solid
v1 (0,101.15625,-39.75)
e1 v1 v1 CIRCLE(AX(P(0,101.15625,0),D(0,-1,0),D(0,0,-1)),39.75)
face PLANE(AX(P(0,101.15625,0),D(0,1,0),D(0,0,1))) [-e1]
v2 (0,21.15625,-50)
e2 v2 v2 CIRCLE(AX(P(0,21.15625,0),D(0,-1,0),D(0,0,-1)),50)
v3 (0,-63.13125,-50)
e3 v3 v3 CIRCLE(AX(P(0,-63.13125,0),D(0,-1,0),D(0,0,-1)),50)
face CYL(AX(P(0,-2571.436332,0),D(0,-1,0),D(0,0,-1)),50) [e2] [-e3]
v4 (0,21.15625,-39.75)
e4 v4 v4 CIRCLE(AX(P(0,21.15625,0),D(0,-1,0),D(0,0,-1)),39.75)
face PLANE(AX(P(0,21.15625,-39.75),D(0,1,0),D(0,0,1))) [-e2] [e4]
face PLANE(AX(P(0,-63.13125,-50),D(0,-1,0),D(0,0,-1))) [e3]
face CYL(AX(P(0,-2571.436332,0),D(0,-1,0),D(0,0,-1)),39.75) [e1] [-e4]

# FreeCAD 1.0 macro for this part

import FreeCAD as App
import Part
import Sketcher

doc = App.newDocument("Part")
body = doc.addObject("PartDesign::Body", "Body")

sketch1 = body.newObject("Sketcher::SketchObject", "Sketch")
sketch1.AttachmentSupport = (doc.getObject("YZ_Plane"), [""])
sketch1.MapMode = "FlatFace"
sketch1.addGeometry([
    Part.LineSegment(App.Vector(101, -40, 0), App.Vector(101, 0, 0)),
    Part.LineSegment(App.Vector(101, 0, 0), App.Vector(-63, 0, 0)),
    Part.LineSegment(App.Vector(-63, 0, 0), App.Vector(-63, -50, 0)),
    Part.LineSegment(App.Vector(-63, -50, 0), App.Vector(21, -50, 0)),
    Part.LineSegment(App.Vector(21, -50, 0), App.Vector(21, -40, 0)),
    Part.LineSegment(App.Vector(21, -40, 0), App.Vector(101, -40, 0)),
], False)
sketch1.addConstraint([
    Sketcher.Constraint("Coincident", 0, 2, 1, 1),
    Sketcher.Constraint("Coincident", 1, 2, 2, 1),
    Sketcher.Constraint("Coincident", 2, 2, 3, 1),
    Sketcher.Constraint("Coincident", 3, 2, 4, 1),
    Sketcher.Constraint("Coincident", 4, 2, 5, 1),
    Sketcher.Constraint("Coincident", 5, 2, 0, 1),
    Sketcher.Constraint("Vertical", 0),
    Sketcher.Constraint("Horizontal", 1),
    Sketcher.Constraint("Vertical", 2),
    Sketcher.Constraint("Horizontal", 3),
    Sketcher.Constraint("Vertical", 4),
    Sketcher.Constraint("Horizontal", 5),
    Sketcher.Constraint("PointOnObject", 0, 2, -1),
    Sketcher.Constraint("DistanceX", 5, 1, 5, 2, 80.0),
    Sketcher.Constraint("DistanceY", 2, 2, 2, 1, 50.0),
    Sketcher.Constraint("DistanceY", 0, 1, 0, 2, 39.75),
    Sketcher.Constraint("DistanceX", 1, 2, 1, 1, 164.2875),
    Sketcher.Constraint("DistanceX", -1, 1, 0, 2, 101.15625),
])
revolution = body.newObject("PartDesign::Revolution", "Revolution")
revolution.Profile = sketch1
revolution.ReferenceAxis = (sketch1, ["H_Axis"])
revolution.Angle = 360

doc.recompute()
